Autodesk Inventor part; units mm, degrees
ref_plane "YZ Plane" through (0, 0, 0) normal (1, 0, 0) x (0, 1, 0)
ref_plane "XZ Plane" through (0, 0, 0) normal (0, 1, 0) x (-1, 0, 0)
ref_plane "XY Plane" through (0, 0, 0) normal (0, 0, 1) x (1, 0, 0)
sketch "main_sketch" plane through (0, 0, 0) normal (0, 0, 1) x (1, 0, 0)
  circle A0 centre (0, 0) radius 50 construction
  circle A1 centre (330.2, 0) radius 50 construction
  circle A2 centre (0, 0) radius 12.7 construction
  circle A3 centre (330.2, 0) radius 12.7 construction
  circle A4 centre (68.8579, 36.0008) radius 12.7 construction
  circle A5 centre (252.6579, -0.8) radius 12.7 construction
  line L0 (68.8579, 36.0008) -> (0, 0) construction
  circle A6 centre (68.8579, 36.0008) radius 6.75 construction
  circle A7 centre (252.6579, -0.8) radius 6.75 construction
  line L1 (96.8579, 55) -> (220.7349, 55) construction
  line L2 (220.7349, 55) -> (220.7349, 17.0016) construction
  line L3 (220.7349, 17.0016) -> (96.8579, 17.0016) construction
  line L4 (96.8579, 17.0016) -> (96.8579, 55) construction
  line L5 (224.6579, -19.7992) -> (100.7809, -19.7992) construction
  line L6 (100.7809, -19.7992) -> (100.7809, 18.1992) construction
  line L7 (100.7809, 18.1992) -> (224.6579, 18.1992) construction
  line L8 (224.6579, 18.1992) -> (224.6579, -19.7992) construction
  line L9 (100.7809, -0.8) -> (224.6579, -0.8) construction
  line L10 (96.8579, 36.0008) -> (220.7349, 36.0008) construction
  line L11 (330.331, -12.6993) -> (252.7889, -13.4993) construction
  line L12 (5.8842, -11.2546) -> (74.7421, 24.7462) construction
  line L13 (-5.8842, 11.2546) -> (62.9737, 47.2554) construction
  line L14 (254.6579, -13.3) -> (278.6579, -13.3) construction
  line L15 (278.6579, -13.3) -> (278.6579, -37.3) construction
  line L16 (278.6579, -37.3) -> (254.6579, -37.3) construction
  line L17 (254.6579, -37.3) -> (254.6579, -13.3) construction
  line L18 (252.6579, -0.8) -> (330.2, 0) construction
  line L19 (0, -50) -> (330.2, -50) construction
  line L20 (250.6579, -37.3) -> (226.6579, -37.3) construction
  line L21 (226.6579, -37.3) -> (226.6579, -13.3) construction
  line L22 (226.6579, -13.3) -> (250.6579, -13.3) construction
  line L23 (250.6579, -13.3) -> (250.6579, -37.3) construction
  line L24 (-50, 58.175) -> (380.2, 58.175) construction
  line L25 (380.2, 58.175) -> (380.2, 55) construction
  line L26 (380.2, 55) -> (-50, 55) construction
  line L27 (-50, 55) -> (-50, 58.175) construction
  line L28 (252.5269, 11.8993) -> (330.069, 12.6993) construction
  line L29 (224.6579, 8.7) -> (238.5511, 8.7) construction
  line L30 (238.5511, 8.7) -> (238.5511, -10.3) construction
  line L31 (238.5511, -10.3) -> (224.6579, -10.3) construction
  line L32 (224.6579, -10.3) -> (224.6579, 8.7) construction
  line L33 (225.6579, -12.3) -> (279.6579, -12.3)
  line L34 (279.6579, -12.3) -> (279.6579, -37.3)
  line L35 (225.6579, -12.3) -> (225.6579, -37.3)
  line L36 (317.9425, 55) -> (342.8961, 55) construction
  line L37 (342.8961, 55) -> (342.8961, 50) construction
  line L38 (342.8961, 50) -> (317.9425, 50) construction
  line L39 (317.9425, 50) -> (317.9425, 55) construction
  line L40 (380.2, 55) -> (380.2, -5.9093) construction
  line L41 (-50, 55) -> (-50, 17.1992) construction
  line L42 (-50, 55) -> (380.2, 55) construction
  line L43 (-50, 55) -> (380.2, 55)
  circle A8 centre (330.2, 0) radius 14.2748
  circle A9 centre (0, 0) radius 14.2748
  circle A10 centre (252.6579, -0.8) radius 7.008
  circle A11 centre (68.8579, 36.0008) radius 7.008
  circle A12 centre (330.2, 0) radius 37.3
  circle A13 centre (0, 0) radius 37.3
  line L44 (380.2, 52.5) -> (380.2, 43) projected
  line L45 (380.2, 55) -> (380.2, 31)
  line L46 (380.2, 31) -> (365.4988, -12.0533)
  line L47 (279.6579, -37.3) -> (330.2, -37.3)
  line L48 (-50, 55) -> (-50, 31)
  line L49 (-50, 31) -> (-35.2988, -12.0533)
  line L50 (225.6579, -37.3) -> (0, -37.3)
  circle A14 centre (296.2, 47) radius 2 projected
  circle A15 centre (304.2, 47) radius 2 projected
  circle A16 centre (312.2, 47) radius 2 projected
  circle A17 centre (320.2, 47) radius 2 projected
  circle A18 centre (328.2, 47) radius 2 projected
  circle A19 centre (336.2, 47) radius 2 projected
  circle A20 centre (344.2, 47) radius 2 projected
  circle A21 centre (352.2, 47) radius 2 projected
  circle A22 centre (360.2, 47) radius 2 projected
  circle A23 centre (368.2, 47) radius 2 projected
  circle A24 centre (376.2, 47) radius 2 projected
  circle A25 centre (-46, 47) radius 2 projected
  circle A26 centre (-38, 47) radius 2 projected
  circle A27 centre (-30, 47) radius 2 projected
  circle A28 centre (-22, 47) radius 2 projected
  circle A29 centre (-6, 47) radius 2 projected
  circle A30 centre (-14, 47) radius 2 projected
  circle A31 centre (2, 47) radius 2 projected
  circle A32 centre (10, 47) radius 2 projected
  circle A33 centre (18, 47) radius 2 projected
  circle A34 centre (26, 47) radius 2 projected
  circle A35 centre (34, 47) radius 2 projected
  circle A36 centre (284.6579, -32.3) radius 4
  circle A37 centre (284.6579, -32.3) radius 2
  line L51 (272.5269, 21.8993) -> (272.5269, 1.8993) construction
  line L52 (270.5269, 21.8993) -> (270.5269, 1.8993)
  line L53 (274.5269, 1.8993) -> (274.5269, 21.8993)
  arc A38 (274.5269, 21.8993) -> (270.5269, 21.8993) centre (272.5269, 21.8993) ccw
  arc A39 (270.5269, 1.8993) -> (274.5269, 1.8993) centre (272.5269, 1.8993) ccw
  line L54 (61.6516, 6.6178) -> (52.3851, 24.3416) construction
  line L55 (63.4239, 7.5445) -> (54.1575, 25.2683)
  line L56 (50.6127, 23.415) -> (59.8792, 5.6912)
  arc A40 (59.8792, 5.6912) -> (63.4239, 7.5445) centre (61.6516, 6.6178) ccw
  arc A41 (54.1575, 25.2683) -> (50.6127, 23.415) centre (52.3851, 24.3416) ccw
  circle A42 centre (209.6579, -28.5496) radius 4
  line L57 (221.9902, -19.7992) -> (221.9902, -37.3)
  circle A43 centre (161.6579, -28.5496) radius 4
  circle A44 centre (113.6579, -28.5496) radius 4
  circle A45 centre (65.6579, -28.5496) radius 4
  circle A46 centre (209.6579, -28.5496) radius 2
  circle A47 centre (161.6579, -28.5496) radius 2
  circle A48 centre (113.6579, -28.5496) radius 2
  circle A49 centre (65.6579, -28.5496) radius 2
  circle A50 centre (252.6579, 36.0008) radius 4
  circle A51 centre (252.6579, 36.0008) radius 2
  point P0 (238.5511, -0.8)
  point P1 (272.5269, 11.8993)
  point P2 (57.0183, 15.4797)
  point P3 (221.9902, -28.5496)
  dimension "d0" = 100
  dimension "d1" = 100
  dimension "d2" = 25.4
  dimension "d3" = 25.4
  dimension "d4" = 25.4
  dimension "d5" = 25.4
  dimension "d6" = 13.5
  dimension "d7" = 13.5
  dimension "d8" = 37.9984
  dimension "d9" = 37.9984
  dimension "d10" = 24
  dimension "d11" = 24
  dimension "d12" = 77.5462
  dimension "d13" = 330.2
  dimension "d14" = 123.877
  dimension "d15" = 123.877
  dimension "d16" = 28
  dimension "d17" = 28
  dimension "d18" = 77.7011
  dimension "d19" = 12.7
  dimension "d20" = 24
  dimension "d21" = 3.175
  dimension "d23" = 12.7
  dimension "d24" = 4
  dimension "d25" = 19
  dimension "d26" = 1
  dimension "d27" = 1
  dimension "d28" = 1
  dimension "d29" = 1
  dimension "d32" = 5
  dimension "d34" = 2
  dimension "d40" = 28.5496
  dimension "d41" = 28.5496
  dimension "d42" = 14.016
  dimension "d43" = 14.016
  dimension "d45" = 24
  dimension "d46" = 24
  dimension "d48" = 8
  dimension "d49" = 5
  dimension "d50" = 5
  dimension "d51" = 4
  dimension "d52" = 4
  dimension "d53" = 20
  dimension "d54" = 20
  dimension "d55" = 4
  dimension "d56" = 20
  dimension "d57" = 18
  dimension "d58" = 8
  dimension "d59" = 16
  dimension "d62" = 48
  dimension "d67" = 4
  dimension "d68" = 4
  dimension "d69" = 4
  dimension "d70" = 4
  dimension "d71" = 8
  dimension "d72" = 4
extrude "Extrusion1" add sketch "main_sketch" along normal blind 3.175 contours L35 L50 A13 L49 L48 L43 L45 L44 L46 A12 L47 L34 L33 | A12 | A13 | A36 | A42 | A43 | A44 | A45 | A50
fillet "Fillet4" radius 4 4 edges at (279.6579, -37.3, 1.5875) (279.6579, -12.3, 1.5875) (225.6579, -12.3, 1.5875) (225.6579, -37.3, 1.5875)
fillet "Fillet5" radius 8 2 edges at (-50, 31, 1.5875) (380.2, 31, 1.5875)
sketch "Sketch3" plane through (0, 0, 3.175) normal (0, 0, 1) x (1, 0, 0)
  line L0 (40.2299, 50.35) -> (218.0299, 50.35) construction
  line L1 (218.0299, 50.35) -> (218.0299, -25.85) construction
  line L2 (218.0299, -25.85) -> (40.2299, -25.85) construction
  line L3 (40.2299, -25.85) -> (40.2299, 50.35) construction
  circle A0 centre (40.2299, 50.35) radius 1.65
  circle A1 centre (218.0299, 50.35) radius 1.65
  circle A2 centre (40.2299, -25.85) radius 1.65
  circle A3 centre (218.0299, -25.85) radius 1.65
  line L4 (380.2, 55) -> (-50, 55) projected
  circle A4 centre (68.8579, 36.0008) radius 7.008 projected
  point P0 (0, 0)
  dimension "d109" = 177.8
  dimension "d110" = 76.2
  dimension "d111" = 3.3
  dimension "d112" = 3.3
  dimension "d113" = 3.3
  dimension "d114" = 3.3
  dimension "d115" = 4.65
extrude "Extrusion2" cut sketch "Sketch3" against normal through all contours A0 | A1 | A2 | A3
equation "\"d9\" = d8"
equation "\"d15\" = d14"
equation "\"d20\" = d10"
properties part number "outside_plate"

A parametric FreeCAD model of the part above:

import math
import FreeCAD as App
import Part
import Sketcher
from FreeCAD import Vector


def edges_at(feature, points):
    """Names of the edges that pass closest to the given points."""
    edges = feature.Shape.Edges
    near = lambda p: min(range(len(edges)), key=lambda i: edges[i].distToShape(Part.Vertex(*p))[0])
    return sorted({f"Edge{near(p) + 1}" for p in points})

doc = App.newDocument("Part")
body = doc.addObject("PartDesign::Body", "Body")

sketch1 = body.newObject("Sketcher::SketchObject", "Sketch")
sketch1.AttachmentSupport = (doc.getObject("XY_Plane"), [""])
sketch1.MapMode = "FlatFace"
sketch1.addGeometry(Part.LineSegment(Vector(225.7, -37.3, 0), Vector(225.7, -12.3, 0)), False)
sketch1.addGeometry(Part.LineSegment(Vector(225.7, -12.3, 0), Vector(279.7, -12.3, 0)), False)
sketch1.addGeometry(Part.LineSegment(Vector(279.7, -12.3, 0), Vector(279.7, -37.3, 0)), False)
sketch1.addGeometry(Part.LineSegment(Vector(279.7, -37.3, 0), Vector(330.2, -37.3, 0)), False)
sketch1.addGeometry(Part.ArcOfCircle(Part.Circle(Vector(330.2, 0, 0), Vector(0, 0, 1), 37.3), math.radians(-90), math.radians(-19)), False)
sketch1.addGeometry(Part.LineSegment(Vector(365.5, -12.1, 0), Vector(380.2, 31, 0)), False)
sketch1.addGeometry(Part.LineSegment(Vector(380.2, 31, 0), Vector(380.2, 55, 0)), False)
sketch1.addGeometry(Part.LineSegment(Vector(380.2, 55, 0), Vector(-50, 55, 0)), False)
sketch1.addGeometry(Part.LineSegment(Vector(-50, 55, 0), Vector(-50, 31, 0)), False)
sketch1.addGeometry(Part.LineSegment(Vector(-50, 31, 0), Vector(-35.3, -12.1, 0)), False)
sketch1.addGeometry(Part.ArcOfCircle(Part.Circle(Vector(0, 0, 0), Vector(0, 0, 1), 37.3), math.radians(-161), math.radians(-90)), False)
sketch1.addGeometry(Part.LineSegment(Vector(0, -37.3, 0), Vector(225.7, -37.3, 0)), False)
sketch1.addGeometry(Part.Circle(Vector(252.7, -0.8, 0), Vector(0, 0, 1), 7), False)
sketch1.addGeometry(Part.LineSegment(Vector(54.2, 25.3, 0), Vector(63.4, 7.5, 0)), False)
sketch1.addGeometry(Part.ArcOfCircle(Part.Circle(Vector(61.7, 6.6, 0), Vector(0, 0, 1), 2), math.radians(-152), math.radians(28)), False)
sketch1.addGeometry(Part.LineSegment(Vector(59.9, 5.7, 0), Vector(50.6, 23.4, 0)), False)
sketch1.addGeometry(Part.ArcOfCircle(Part.Circle(Vector(52.4, 24.3, 0), Vector(0, 0, 1), 2), math.radians(28), math.radians(208)), False)
sketch1.addGeometry(Part.Circle(Vector(-46, 47, 0), Vector(0, 0, 1), 2), False)
sketch1.addGeometry(Part.Circle(Vector(-38, 47, 0), Vector(0, 0, 1), 2), False)
sketch1.addGeometry(Part.Circle(Vector(-30, 47, 0), Vector(0, 0, 1), 2), False)
sketch1.addGeometry(Part.Circle(Vector(-22, 47, 0), Vector(0, 0, 1), 2), False)
sketch1.addGeometry(Part.Circle(Vector(-14, 47, 0), Vector(0, 0, 1), 2), False)
sketch1.addGeometry(Part.Circle(Vector(-6, 47, 0), Vector(0, 0, 1), 2), False)
sketch1.addGeometry(Part.Circle(Vector(2, 47, 0), Vector(0, 0, 1), 2), False)
sketch1.addGeometry(Part.Circle(Vector(10, 47, 0), Vector(0, 0, 1), 2), False)
sketch1.addGeometry(Part.Circle(Vector(18, 47, 0), Vector(0, 0, 1), 2), False)
sketch1.addGeometry(Part.Circle(Vector(26, 47, 0), Vector(0, 0, 1), 2), False)
sketch1.addGeometry(Part.Circle(Vector(34, 47, 0), Vector(0, 0, 1), 2), False)
sketch1.addGeometry(Part.Circle(Vector(68.9, 36, 0), Vector(0, 0, 1), 7), False)
sketch1.addGeometry(Part.LineSegment(Vector(270.5, 1.9, 0), Vector(270.5, 21.9, 0)), False)
sketch1.addGeometry(Part.ArcOfCircle(Part.Circle(Vector(272.5, 21.9, 0), Vector(0, 0, 1), 2), math.radians(0), math.radians(180)), False)
sketch1.addGeometry(Part.LineSegment(Vector(274.5, 21.9, 0), Vector(274.5, 1.9, 0)), False)
sketch1.addGeometry(Part.ArcOfCircle(Part.Circle(Vector(272.5, 1.9, 0), Vector(0, 0, 1), 2), math.radians(180), math.radians(360)), False)
sketch1.addGeometry(Part.Circle(Vector(296.2, 47, 0), Vector(0, 0, 1), 2), False)
sketch1.addGeometry(Part.Circle(Vector(304.2, 47, 0), Vector(0, 0, 1), 2), False)
sketch1.addGeometry(Part.Circle(Vector(312.2, 47, 0), Vector(0, 0, 1), 2), False)
sketch1.addGeometry(Part.Circle(Vector(320.2, 47, 0), Vector(0, 0, 1), 2), False)
sketch1.addGeometry(Part.Circle(Vector(328.2, 47, 0), Vector(0, 0, 1), 2), False)
sketch1.addGeometry(Part.Circle(Vector(336.2, 47, 0), Vector(0, 0, 1), 2), False)
sketch1.addGeometry(Part.Circle(Vector(344.2, 47, 0), Vector(0, 0, 1), 2), False)
sketch1.addGeometry(Part.Circle(Vector(352.2, 47, 0), Vector(0, 0, 1), 2), False)
sketch1.addGeometry(Part.Circle(Vector(360.2, 47, 0), Vector(0, 0, 1), 2), False)
sketch1.addGeometry(Part.Circle(Vector(368.2, 47, 0), Vector(0, 0, 1), 2), False)
sketch1.addGeometry(Part.Circle(Vector(376.2, 47, 0), Vector(0, 0, 1), 2), False)
sketch1.addGeometry(Part.Circle(Vector(0, 0, 0), Vector(0, 0, 1), 14.3), False)
sketch1.addGeometry(Part.Circle(Vector(330.2, 0, 0), Vector(0, 0, 1), 14.3), False)
sketch1.addGeometry(Part.Circle(Vector(65.7, -28.5, 0), Vector(0, 0, 1), 2), False)
sketch1.addGeometry(Part.Circle(Vector(113.7, -28.5, 0), Vector(0, 0, 1), 2), False)
sketch1.addGeometry(Part.Circle(Vector(161.7, -28.5, 0), Vector(0, 0, 1), 2), False)
sketch1.addGeometry(Part.Circle(Vector(209.7, -28.5, 0), Vector(0, 0, 1), 2), False)
sketch1.addGeometry(Part.Circle(Vector(284.7, -32.3, 0), Vector(0, 0, 1), 2), False)
sketch1.addGeometry(Part.Circle(Vector(252.7, 36, 0), Vector(0, 0, 1), 2), False)
sketch1.addConstraint(Sketcher.Constraint("Coincident", 0, 2, 1, 1))
sketch1.addConstraint(Sketcher.Constraint("Coincident", 1, 2, 2, 1))
sketch1.addConstraint(Sketcher.Constraint("Coincident", 2, 2, 3, 1))
sketch1.addConstraint(Sketcher.Constraint("Tangent", 3, 2, 4, 1))
sketch1.addConstraint(Sketcher.Constraint("Tangent", 4, 2, 5, 1))
sketch1.addConstraint(Sketcher.Constraint("Coincident", 5, 2, 6, 1))
sketch1.addConstraint(Sketcher.Constraint("Coincident", 6, 2, 7, 1))
sketch1.addConstraint(Sketcher.Constraint("Coincident", 7, 2, 8, 1))
sketch1.addConstraint(Sketcher.Constraint("Coincident", 8, 2, 9, 1))
sketch1.addConstraint(Sketcher.Constraint("Tangent", 9, 2, 10, 1))
sketch1.addConstraint(Sketcher.Constraint("Tangent", 10, 2, 11, 1))
sketch1.addConstraint(Sketcher.Constraint("Coincident", 11, 2, 0, 1))
sketch1.addConstraint(Sketcher.Constraint("Tangent", 13, 2, 14, 2))
sketch1.addConstraint(Sketcher.Constraint("Tangent", 14, 1, 15, 1))
sketch1.addConstraint(Sketcher.Constraint("Tangent", 15, 2, 16, 2))
sketch1.addConstraint(Sketcher.Constraint("Tangent", 16, 1, 13, 1))
sketch1.addConstraint(Sketcher.Constraint("Tangent", 29, 2, 30, 2))
sketch1.addConstraint(Sketcher.Constraint("Tangent", 30, 1, 31, 1))
sketch1.addConstraint(Sketcher.Constraint("Tangent", 31, 2, 32, 2))
sketch1.addConstraint(Sketcher.Constraint("Tangent", 32, 1, 29, 1))
sketch1.addConstraint(Sketcher.Constraint("Vertical", 0))
sketch1.addConstraint(Sketcher.Constraint("Horizontal", 1))
sketch1.addConstraint(Sketcher.Constraint("Vertical", 2))
sketch1.addConstraint(Sketcher.Constraint("Horizontal", 3))
sketch1.addConstraint(Sketcher.Constraint("Vertical", 6))
sketch1.addConstraint(Sketcher.Constraint("Horizontal", 7))
sketch1.addConstraint(Sketcher.Constraint("Vertical", 8))
sketch1.addConstraint(Sketcher.Constraint("Horizontal", 11))
sketch1.addConstraint(Sketcher.Constraint("Vertical", 29))
sketch1.addConstraint(Sketcher.Constraint("Vertical", 31))
sketch1.addConstraint(Sketcher.Constraint("Coincident", 10, 3, -1, 1))
sketch1.addConstraint(Sketcher.Constraint("Coincident", 44, 3, -1, 1))
sketch1.addConstraint(Sketcher.Constraint("Coincident", 45, 3, 4, 3))
sketch1.addConstraint(Sketcher.Constraint("Equal", 4, 10))
sketch1.addConstraint(Sketcher.Constraint("Equal", 14, 16))
sketch1.addConstraint(Sketcher.Constraint("Equal", 16, 17))
sketch1.addConstraint(Sketcher.Constraint("Equal", 17, 18))
sketch1.addConstraint(Sketcher.Constraint("Equal", 18, 19))
sketch1.addConstraint(Sketcher.Constraint("Equal", 19, 20))
sketch1.addConstraint(Sketcher.Constraint("Equal", 20, 21))
sketch1.addConstraint(Sketcher.Constraint("Equal", 21, 22))
sketch1.addConstraint(Sketcher.Constraint("Equal", 22, 23))
sketch1.addConstraint(Sketcher.Constraint("Equal", 23, 24))
sketch1.addConstraint(Sketcher.Constraint("Equal", 24, 25))
sketch1.addConstraint(Sketcher.Constraint("Equal", 25, 26))
sketch1.addConstraint(Sketcher.Constraint("Equal", 26, 27))
sketch1.addConstraint(Sketcher.Constraint("Equal", 12, 28))
sketch1.addConstraint(Sketcher.Constraint("Equal", 27, 30))
sketch1.addConstraint(Sketcher.Constraint("Equal", 32, 33))
sketch1.addConstraint(Sketcher.Constraint("Equal", 33, 34))
sketch1.addConstraint(Sketcher.Constraint("Equal", 34, 35))
sketch1.addConstraint(Sketcher.Constraint("Equal", 35, 36))
sketch1.addConstraint(Sketcher.Constraint("Equal", 36, 37))
sketch1.addConstraint(Sketcher.Constraint("Equal", 37, 38))
sketch1.addConstraint(Sketcher.Constraint("Equal", 38, 39))
sketch1.addConstraint(Sketcher.Constraint("Equal", 39, 40))
sketch1.addConstraint(Sketcher.Constraint("Equal", 40, 41))
sketch1.addConstraint(Sketcher.Constraint("Equal", 41, 42))
sketch1.addConstraint(Sketcher.Constraint("Equal", 42, 43))
sketch1.addConstraint(Sketcher.Constraint("Equal", 44, 45))
sketch1.addConstraint(Sketcher.Constraint("Equal", 43, 46))
sketch1.addConstraint(Sketcher.Constraint("Equal", 46, 47))
sketch1.addConstraint(Sketcher.Constraint("Equal", 47, 48))
sketch1.addConstraint(Sketcher.Constraint("Equal", 48, 49))
sketch1.addConstraint(Sketcher.Constraint("Equal", 49, 50))
sketch1.addConstraint(Sketcher.Constraint("Equal", 50, 51))
sketch1.addConstraint(Sketcher.Constraint("PointOnObject", 4, 3, -1))
sketch1.addConstraint(Sketcher.Constraint("Horizontal", 17, 3, 18, 3))
sketch1.addConstraint(Sketcher.Constraint("Horizontal", 18, 3, 19, 3))
sketch1.addConstraint(Sketcher.Constraint("Horizontal", 19, 3, 20, 3))
sketch1.addConstraint(Sketcher.Constraint("Horizontal", 20, 3, 21, 3))
sketch1.addConstraint(Sketcher.Constraint("Horizontal", 21, 3, 22, 3))
sketch1.addConstraint(Sketcher.Constraint("Horizontal", 22, 3, 23, 3))
sketch1.addConstraint(Sketcher.Constraint("Horizontal", 23, 3, 24, 3))
sketch1.addConstraint(Sketcher.Constraint("Horizontal", 24, 3, 25, 3))
sketch1.addConstraint(Sketcher.Constraint("Horizontal", 25, 3, 26, 3))
sketch1.addConstraint(Sketcher.Constraint("Horizontal", 26, 3, 27, 3))
sketch1.addConstraint(Sketcher.Constraint("Horizontal", 27, 3, 33, 3))
sketch1.addConstraint(Sketcher.Constraint("Horizontal", 33, 3, 34, 3))
sketch1.addConstraint(Sketcher.Constraint("Horizontal", 34, 3, 35, 3))
sketch1.addConstraint(Sketcher.Constraint("Horizontal", 35, 3, 36, 3))
sketch1.addConstraint(Sketcher.Constraint("Horizontal", 36, 3, 37, 3))
sketch1.addConstraint(Sketcher.Constraint("Horizontal", 37, 3, 38, 3))
sketch1.addConstraint(Sketcher.Constraint("Horizontal", 38, 3, 39, 3))
sketch1.addConstraint(Sketcher.Constraint("Horizontal", 39, 3, 40, 3))
sketch1.addConstraint(Sketcher.Constraint("Horizontal", 40, 3, 41, 3))
sketch1.addConstraint(Sketcher.Constraint("Horizontal", 41, 3, 42, 3))
sketch1.addConstraint(Sketcher.Constraint("Horizontal", 42, 3, 43, 3))
sketch1.addConstraint(Sketcher.Constraint("Horizontal", 46, 3, 47, 3))
sketch1.addConstraint(Sketcher.Constraint("Horizontal", 47, 3, 48, 3))
sketch1.addConstraint(Sketcher.Constraint("Horizontal", 48, 3, 49, 3))
sketch1.addConstraint(Sketcher.Constraint("Horizontal", 28, 3, 51, 3))
sketch1.addConstraint(Sketcher.Constraint("Horizontal", 5, 2, 8, 2))
sketch1.addConstraint(Sketcher.Constraint("Horizontal", 4, 2, 9, 2))
sketch1.addConstraint(Sketcher.Constraint("Vertical", 12, 3, 51, 3))
sketch1.addConstraint(Sketcher.Constraint("Diameter", 17, 4.0))
sketch1.addConstraint(Sketcher.Constraint("DistanceY", 6, 1, 6, 2, 24.0))
sketch1.addConstraint(Sketcher.Constraint("DistanceY", 29, 1, 29, 2, 20.0))
sketch1.addConstraint(Sketcher.Constraint("Distance", 13, 20.0))
sketch1.addConstraint(Sketcher.Constraint("Diameter", 12, 14.016))
sketch1.addConstraint(Sketcher.Constraint("DistanceX", -1, 1, 23, 3, 2.0))
sketch1.addConstraint(Sketcher.Constraint("DistanceX", -1, 1, 25, 3, 18.0))
sketch1.addConstraint(Sketcher.Constraint("DistanceX", 17, 3, 18, 3, 8.0))
sketch1.addConstraint(Sketcher.Constraint("DistanceX", 18, 3, 19, 3, 8.0))
sketch1.addConstraint(Sketcher.Constraint("DistanceX", 19, 3, 20, 3, 8.0))
sketch1.addConstraint(Sketcher.Constraint("DistanceX", 20, 3, 21, 3, 8.0))
sketch1.addConstraint(Sketcher.Constraint("DistanceX", 21, 3, 22, 3, 8.0))
sketch1.addConstraint(Sketcher.Constraint("DistanceX", 22, 3, 23, 3, 8.0))
sketch1.addConstraint(Sketcher.Constraint("DistanceX", 23, 3, 24, 3, 8.0))
sketch1.addConstraint(Sketcher.Constraint("DistanceX", 25, 3, 26, 3, 8.0))
sketch1.addConstraint(Sketcher.Constraint("DistanceX", 26, 3, 27, 3, 8.0))
sketch1.addConstraint(Sketcher.Constraint("DistanceX", 33, 3, 34, 3, 8.0))
sketch1.addConstraint(Sketcher.Constraint("DistanceX", 34, 3, 35, 3, 8.0))
sketch1.addConstraint(Sketcher.Constraint("DistanceX", 35, 3, 4, 3, 18.0))
sketch1.addConstraint(Sketcher.Constraint("DistanceX", 35, 3, 36, 3, 8.0))
sketch1.addConstraint(Sketcher.Constraint("DistanceX", 36, 3, 37, 3, 8.0))
sketch1.addConstraint(Sketcher.Constraint("DistanceX", 37, 3, 38, 3, 8.0))
sketch1.addConstraint(Sketcher.Constraint("DistanceX", 38, 3, 39, 3, 8.0))
sketch1.addConstraint(Sketcher.Constraint("DistanceX", 39, 3, 40, 3, 8.0))
sketch1.addConstraint(Sketcher.Constraint("DistanceX", 40, 3, 41, 3, 8.0))
sketch1.addConstraint(Sketcher.Constraint("DistanceX", 41, 3, 42, 3, 8.0))
sketch1.addConstraint(Sketcher.Constraint("DistanceX", 42, 3, 43, 3, 8.0))
sketch1.addConstraint(Sketcher.Constraint("DistanceX", 46, 3, 47, 3, 48.0))
sketch1.addConstraint(Sketcher.Constraint("DistanceX", 47, 3, 48, 3, 48.0))
sketch1.addConstraint(Sketcher.Constraint("DistanceX", 48, 3, 49, 3, 48.0))
sketch1.addConstraint(Sketcher.Constraint("DistanceX", 49, 3, 0, 2, 16.0))
sketch1.addConstraint(Sketcher.Constraint("DistanceX", 1, 2, 50, 3, 5.0))
sketch1.addConstraint(Sketcher.Constraint("DistanceY", 50, 3, 1, 2, 20.0))
sketch1.addConstraint(Sketcher.Constraint("DistanceY", 2, 2, 50, 3, 5.0))
sketch1.addConstraint(Sketcher.Constraint("DistanceX", 43, 3, 5, 2, 4.0))
sketch1.addConstraint(Sketcher.Constraint("DistanceY", 5, 2, 43, 3, 16.0))
sketch1.addConstraint(Sketcher.Constraint("Diameter", 44, 28.5496))
sketch1.addConstraint(Sketcher.Constraint("DistanceX", -1, 1, 4, 3, 330.2))
sketch1.addConstraint(Sketcher.Constraint("Radius", 4, 37.3))
sketch1.addConstraint(Sketcher.Constraint("DistanceX", 1, 1, 1, 2, 54.0))
sketch1.addConstraint(Sketcher.Constraint("DistanceY", -1, 1, 17, 3, 47.0))
sketch1.addConstraint(Sketcher.Constraint("DistanceX", 48, 3, 12, 3, 91.0))
sketch1.addConstraint(Sketcher.Constraint("DistanceY", 12, 3, -1, 1, 0.8))
sketch1.addConstraint(Sketcher.Constraint("DistanceY", 46, 3, -1, 1, 28.5496))
sketch1.addConstraint(Sketcher.Constraint("DistanceX", 46, 3, 28, 3, 3.2))
sketch1.addConstraint(Sketcher.Constraint("DistanceX", 3, 1, 3, 2, 50.542))
sketch1.addConstraint(Sketcher.Constraint("DistanceX", -1, 1, 16, 3, 52.385))
sketch1.addConstraint(Sketcher.Constraint("DistanceX", -1, 1, 30, 3, 272.527))
sketch1.addConstraint(Sketcher.Constraint("DistanceX", -1, 1, 13, 2, 63.424))
sketch1.addConstraint(Sketcher.Constraint("DistanceY", -1, 1, 15, 2, 23.415))
sketch1.addConstraint(Sketcher.Constraint("DistanceY", 14, 3, 28, 3, 29.383))
sketch1.addConstraint(Sketcher.Constraint("DistanceY", 49, 3, 32, 3, 30.449))
pad1 = body.newObject("PartDesign::Pad", "Pad")
pad1.Profile = sketch1
pad1.Length = 3.175
doc.recompute()

fillet = body.newObject("PartDesign::Fillet", "Fillet")
fillet.Base = (pad1, edges_at(pad1, [
    (279.658, -37.3, 1.587),
    (279.658, -12.3, 1.587),
    (225.658, -12.3, 1.587),
    (225.658, -37.3, 1.587),
]))
fillet.Radius = 4
doc.recompute()

fillet2 = body.newObject("PartDesign::Fillet", "Fillet001")
fillet2.Base = (fillet, edges_at(fillet, [(-50, 31, 1.587), (380.2, 31, 1.587)]))
fillet2.Radius = 8

sketch2 = body.newObject("Sketcher::SketchObject", "Sketch001")
sketch2.AttachmentSupport = (doc.getObject("XY_Plane"), [""])
sketch2.MapMode = "FlatFace"
sketch2.AttachmentOffset = App.Placement(Vector(0, 0, 3.175), App.Rotation())
sketch2.addGeometry(Part.Circle(Vector(40.2, 50.4, 0), Vector(0, 0, 1), 1.6), False)
sketch2.addGeometry(Part.Circle(Vector(218, 50.4, 0), Vector(0, 0, 1), 1.6), False)
sketch2.addGeometry(Part.Circle(Vector(40.2, -25.9, 0), Vector(0, 0, 1), 1.6), False)
sketch2.addGeometry(Part.Circle(Vector(218, -25.9, 0), Vector(0, 0, 1), 1.6), False)
sketch2.addConstraint(Sketcher.Constraint("Equal", 0, 1))
sketch2.addConstraint(Sketcher.Constraint("Equal", 1, 2))
sketch2.addConstraint(Sketcher.Constraint("Equal", 2, 3))
sketch2.addConstraint(Sketcher.Constraint("Horizontal", 0, 3, 1, 3))
sketch2.addConstraint(Sketcher.Constraint("Horizontal", 2, 3, 3, 3))
sketch2.addConstraint(Sketcher.Constraint("Vertical", 0, 3, 2, 3))
sketch2.addConstraint(Sketcher.Constraint("Vertical", 1, 3, 3, 3))
sketch2.addConstraint(Sketcher.Constraint("Diameter", 0, 3.3))
sketch2.addConstraint(Sketcher.Constraint("DistanceX", 0, 3, 1, 3, 177.8))
sketch2.addConstraint(Sketcher.Constraint("DistanceY", 2, 3, 0, 3, 76.2))
sketch2.addConstraint(Sketcher.Constraint("DistanceX", -1, 1, 0, 3, 40.23))
sketch2.addConstraint(Sketcher.Constraint("DistanceY", -1, 1, 0, 3, 50.35))
pocket1 = body.newObject("PartDesign::Pocket", "Pocket")
pocket1.Profile = sketch2
pocket1.Type = "ThroughAll"

doc.recompute()
